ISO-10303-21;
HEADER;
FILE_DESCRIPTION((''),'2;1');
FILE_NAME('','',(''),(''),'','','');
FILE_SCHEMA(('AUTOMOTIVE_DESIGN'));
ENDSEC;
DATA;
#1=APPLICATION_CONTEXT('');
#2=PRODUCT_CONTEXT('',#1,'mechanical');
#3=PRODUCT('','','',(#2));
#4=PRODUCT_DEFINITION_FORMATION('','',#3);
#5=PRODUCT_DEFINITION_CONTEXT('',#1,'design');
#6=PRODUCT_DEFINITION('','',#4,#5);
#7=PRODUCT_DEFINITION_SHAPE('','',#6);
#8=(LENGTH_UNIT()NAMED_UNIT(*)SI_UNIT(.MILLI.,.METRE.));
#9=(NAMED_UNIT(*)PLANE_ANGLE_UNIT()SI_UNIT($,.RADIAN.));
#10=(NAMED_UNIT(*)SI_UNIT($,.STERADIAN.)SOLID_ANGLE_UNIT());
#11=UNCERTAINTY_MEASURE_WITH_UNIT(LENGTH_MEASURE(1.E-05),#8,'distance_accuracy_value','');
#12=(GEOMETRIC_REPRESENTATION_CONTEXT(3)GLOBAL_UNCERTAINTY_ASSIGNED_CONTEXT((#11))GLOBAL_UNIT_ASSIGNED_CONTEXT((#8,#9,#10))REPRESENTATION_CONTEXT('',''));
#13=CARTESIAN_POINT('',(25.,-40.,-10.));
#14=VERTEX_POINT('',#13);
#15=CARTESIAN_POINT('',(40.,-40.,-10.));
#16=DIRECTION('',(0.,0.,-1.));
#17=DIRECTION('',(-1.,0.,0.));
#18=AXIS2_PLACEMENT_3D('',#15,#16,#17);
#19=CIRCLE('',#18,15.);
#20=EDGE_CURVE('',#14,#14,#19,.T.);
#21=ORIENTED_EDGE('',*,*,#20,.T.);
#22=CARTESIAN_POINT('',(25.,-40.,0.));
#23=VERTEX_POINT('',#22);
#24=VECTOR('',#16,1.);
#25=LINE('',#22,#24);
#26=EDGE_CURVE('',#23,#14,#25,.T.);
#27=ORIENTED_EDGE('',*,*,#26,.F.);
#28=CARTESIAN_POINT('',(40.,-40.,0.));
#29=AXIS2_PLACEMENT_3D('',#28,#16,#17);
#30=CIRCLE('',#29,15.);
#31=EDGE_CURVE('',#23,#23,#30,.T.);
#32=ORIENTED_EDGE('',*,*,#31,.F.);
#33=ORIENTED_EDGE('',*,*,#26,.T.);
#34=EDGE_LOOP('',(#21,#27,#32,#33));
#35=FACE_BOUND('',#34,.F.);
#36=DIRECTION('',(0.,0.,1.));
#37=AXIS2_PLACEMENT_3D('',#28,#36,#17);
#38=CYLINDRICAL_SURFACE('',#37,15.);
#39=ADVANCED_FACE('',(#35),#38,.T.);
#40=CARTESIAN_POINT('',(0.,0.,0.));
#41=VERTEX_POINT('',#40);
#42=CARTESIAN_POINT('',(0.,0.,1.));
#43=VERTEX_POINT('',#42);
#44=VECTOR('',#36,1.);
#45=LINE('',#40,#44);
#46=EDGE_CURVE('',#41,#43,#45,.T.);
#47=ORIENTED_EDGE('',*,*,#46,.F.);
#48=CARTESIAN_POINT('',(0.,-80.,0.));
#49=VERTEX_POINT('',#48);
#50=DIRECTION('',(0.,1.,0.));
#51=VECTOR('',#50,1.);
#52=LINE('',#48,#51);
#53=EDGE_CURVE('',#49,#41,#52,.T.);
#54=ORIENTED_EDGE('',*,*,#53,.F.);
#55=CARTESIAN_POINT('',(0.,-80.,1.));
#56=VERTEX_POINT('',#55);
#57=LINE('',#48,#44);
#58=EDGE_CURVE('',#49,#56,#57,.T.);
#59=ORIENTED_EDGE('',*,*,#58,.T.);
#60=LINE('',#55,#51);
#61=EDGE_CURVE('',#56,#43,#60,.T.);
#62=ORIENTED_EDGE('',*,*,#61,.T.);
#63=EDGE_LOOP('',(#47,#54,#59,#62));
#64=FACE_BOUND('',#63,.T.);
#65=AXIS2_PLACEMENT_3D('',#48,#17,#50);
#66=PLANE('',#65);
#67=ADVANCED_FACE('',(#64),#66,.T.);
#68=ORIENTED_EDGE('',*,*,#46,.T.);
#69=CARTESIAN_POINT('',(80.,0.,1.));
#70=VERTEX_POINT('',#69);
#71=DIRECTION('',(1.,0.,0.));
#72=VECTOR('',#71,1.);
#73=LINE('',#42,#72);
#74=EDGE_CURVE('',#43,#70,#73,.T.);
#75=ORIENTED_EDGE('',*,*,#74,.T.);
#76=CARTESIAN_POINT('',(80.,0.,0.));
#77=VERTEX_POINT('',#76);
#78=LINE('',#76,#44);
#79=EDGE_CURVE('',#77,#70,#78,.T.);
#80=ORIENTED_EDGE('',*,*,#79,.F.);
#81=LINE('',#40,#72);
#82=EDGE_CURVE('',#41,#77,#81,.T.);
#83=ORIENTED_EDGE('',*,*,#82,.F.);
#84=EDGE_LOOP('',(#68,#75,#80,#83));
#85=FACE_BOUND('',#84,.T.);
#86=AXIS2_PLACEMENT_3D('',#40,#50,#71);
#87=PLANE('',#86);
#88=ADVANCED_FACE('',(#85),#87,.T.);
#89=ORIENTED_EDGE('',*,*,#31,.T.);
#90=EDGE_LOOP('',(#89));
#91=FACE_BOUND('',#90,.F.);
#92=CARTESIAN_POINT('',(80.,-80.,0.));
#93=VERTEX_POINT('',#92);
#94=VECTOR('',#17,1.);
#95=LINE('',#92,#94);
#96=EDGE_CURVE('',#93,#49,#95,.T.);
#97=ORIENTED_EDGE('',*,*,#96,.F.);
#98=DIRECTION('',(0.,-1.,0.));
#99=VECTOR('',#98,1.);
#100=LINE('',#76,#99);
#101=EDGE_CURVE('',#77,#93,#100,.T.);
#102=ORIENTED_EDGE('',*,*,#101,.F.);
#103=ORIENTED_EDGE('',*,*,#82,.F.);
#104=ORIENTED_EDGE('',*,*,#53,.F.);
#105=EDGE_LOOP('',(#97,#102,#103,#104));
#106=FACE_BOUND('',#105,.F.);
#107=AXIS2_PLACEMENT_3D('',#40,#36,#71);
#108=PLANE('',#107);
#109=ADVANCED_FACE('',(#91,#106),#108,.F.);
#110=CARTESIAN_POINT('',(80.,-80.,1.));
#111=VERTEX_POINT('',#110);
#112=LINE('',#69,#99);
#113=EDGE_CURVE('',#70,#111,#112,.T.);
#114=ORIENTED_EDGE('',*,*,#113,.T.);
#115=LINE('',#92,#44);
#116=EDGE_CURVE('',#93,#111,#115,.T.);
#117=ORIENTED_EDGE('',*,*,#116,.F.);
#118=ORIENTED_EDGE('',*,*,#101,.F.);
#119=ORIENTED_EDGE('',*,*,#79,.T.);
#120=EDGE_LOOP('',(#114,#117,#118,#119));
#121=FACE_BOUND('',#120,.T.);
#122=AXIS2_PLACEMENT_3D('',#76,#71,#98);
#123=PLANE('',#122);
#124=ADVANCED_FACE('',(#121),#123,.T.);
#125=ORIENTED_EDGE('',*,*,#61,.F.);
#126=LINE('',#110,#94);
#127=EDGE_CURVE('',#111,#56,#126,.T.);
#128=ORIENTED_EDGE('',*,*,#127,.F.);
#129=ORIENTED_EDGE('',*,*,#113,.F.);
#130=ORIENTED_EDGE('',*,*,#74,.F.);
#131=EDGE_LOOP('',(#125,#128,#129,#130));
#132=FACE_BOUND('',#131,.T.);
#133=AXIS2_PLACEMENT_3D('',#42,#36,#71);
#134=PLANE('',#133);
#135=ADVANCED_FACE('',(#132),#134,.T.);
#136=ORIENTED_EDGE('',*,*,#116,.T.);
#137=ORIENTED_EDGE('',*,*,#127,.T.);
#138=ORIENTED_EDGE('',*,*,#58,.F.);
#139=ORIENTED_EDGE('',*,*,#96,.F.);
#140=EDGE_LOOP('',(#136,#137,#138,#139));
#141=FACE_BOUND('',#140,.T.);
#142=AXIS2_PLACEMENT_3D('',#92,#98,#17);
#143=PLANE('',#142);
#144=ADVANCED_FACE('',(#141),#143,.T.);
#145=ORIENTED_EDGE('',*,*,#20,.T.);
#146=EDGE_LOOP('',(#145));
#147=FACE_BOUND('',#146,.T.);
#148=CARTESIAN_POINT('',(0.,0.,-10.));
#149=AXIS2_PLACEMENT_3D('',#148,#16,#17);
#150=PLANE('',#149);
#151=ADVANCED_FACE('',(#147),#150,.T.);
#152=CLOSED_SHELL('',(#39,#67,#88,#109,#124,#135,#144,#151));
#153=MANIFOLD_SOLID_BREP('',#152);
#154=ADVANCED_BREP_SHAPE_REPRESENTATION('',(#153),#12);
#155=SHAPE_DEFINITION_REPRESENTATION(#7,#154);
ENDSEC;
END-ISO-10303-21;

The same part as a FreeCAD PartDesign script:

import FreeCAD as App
import Part
import Sketcher
Q = App.Units.Quantity

doc = App.newDocument("Part")
body = doc.addObject("PartDesign::Body", "Body")

sketch1 = body.newObject("Sketcher::SketchObject", "Sketch")
sketch1.AttachmentSupport = (doc.getObject("XY_Plane"), [""])
sketch1.MapMode = "FlatFace"
sketch1.addGeometry([
    Part.LineSegment(App.Vector(80, 0, 0), App.Vector(0, 0, 0)),
    Part.LineSegment(App.Vector(0, 0, 0), App.Vector(0, -80, 0)),
    Part.LineSegment(App.Vector(0, -80, 0), App.Vector(80, -80, 0)),
    Part.LineSegment(App.Vector(80, -80, 0), App.Vector(80, 0, 0)),
], False)
sketch1.addConstraint([
    Sketcher.Constraint("Coincident", 0, 2, 1, 1),
    Sketcher.Constraint("Coincident", 1, 2, 2, 1),
    Sketcher.Constraint("Coincident", 2, 2, 3, 1),
    Sketcher.Constraint("Coincident", 3, 2, 0, 1),
    Sketcher.Constraint("Horizontal", 0),
    Sketcher.Constraint("Vertical", 1),
    Sketcher.Constraint("Horizontal", 2),
    Sketcher.Constraint("Vertical", 3),
    Sketcher.Constraint("Coincident", 0, 2, -1, 1),
    Sketcher.Constraint("Equal", 2, 1),
    Sketcher.Constraint("DistanceX", 0, 2, 0, 1, Q("80 mm")),
])
pad1 = body.newObject("PartDesign::Pad", "Pad")
pad1.Profile = sketch1
pad1.Length = 1

sketch2 = body.newObject("Sketcher::SketchObject", "Sketch001")
sketch2.AttachmentSupport = (doc.getObject("XY_Plane"), [""])
sketch2.MapMode = "FlatFace"
sketch2.addGeometry(Part.Circle(App.Vector(40, -40, 0), App.Vector(0, 0, 1), 15), False)
sketch2.addConstraint([
    Sketcher.Constraint("Diameter", 0, Q("30 mm")),
    Sketcher.Constraint("DistanceX", -1, 1, 0, 3, Q("40 mm")),
    Sketcher.Constraint("DistanceY", 0, 3, -1, 1, Q("40 mm")),
])
pad2 = body.newObject("PartDesign::Pad", "Pad001")
pad2.Profile = sketch2
pad2.Length = 10
pad2.Reversed = True

doc.recompute()
